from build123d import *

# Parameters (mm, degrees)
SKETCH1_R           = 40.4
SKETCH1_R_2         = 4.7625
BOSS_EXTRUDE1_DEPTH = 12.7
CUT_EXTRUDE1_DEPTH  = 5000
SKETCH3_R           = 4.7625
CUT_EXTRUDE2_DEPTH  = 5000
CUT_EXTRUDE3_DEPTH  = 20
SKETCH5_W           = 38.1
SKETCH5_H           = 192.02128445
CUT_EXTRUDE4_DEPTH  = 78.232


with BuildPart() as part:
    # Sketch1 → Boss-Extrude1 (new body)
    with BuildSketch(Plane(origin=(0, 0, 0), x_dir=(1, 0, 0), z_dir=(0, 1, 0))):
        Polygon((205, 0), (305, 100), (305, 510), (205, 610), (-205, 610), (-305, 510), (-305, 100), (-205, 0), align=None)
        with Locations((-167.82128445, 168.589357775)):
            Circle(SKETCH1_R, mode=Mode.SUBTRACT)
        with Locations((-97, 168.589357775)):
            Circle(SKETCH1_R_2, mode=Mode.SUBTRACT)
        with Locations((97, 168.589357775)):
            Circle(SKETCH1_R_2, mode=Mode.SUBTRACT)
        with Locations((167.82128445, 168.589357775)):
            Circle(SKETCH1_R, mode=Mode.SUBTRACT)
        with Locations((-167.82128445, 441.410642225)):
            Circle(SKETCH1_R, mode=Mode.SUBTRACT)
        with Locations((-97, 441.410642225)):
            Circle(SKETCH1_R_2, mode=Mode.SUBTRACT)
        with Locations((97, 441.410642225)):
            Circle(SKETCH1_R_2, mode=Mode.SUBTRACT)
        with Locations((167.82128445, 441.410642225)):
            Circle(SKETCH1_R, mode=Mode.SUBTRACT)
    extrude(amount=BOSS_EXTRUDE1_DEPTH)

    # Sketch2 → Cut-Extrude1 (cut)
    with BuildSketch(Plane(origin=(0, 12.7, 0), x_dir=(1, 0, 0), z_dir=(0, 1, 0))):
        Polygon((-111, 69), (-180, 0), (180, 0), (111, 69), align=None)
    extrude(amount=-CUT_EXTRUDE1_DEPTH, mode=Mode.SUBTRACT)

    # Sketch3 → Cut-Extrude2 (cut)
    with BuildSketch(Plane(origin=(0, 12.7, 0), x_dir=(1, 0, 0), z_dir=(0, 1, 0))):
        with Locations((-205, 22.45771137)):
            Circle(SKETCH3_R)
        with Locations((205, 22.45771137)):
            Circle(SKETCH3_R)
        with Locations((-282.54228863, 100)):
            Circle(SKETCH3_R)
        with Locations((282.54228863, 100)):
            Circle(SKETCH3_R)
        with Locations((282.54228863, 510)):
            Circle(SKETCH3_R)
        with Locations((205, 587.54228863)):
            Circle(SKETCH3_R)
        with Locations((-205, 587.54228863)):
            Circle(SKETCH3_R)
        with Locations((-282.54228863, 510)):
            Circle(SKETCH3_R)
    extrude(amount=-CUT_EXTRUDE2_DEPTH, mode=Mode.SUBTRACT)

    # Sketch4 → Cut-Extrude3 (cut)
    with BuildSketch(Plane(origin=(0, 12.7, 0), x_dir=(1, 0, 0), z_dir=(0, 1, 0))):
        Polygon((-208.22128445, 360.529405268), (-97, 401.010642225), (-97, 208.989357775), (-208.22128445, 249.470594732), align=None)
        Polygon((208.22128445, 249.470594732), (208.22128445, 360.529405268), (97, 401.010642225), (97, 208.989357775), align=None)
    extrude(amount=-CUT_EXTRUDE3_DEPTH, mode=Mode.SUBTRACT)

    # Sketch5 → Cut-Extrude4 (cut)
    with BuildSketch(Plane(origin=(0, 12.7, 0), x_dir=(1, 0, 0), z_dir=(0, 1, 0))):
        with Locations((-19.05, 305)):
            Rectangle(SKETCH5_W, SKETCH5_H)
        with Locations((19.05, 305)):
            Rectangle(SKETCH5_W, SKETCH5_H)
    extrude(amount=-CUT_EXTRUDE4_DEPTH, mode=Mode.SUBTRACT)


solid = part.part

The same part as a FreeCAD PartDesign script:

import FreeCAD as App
import Part
import Sketcher
Q = App.Units.Quantity

doc = App.newDocument("Part")
body = doc.addObject("PartDesign::Body", "Body")

# Sketch on XZ plane
sketch1 = body.newObject("Sketcher::SketchObject", "Sketch")
sketch1.AttachmentSupport = (doc.getObject("XZ_Plane"), [""])
sketch1.MapMode = "FlatFace"
sketch1.addGeometry([
    Part.LineSegment(App.Vector(205, 0, 0), App.Vector(305, -100, 0)),  # 0
    Part.LineSegment(App.Vector(305, -100, 0), App.Vector(305, -510, 0)),  # 1
    Part.LineSegment(App.Vector(305, -510, 0), App.Vector(205, -610, 0)),  # 2
    Part.LineSegment(App.Vector(205, -610, 0), App.Vector(-205, -610, 0)),  # 3
    Part.LineSegment(App.Vector(-205, -610, 0), App.Vector(-305, -510, 0)),  # 4
    Part.LineSegment(App.Vector(-305, -510, 0), App.Vector(-305, -100, 0)),  # 5
    Part.LineSegment(App.Vector(-305, -100, 0), App.Vector(-205, 0, 0)),  # 6
    Part.LineSegment(App.Vector(-205, 0, 0), App.Vector(205, 0, 0)),  # 7
    Part.Circle(App.Vector(-167.8, -168.6, 0), App.Vector(0, 0, 1), 40.4),  # 8
    Part.Circle(App.Vector(-97, -168.6, 0), App.Vector(0, 0, 1), 4.8),  # 9
    Part.Circle(App.Vector(97, -168.6, 0), App.Vector(0, 0, 1), 4.8),  # 10
    Part.Circle(App.Vector(167.8, -168.6, 0), App.Vector(0, 0, 1), 40.4),  # 11
    Part.Circle(App.Vector(-167.8, -441.4, 0), App.Vector(0, 0, 1), 40.4),  # 12
    Part.Circle(App.Vector(-97, -441.4, 0), App.Vector(0, 0, 1), 4.8),  # 13
    Part.Circle(App.Vector(97, -441.4, 0), App.Vector(0, 0, 1), 4.8),  # 14
    Part.Circle(App.Vector(167.8, -441.4, 0), App.Vector(0, 0, 1), 40.4),  # 15
], False)
sketch1.addConstraint([
    Sketcher.Constraint("Coincident", 0, 2, 1, 1),
    Sketcher.Constraint("Coincident", 1, 2, 2, 1),
    Sketcher.Constraint("Coincident", 2, 2, 3, 1),
    Sketcher.Constraint("Coincident", 3, 2, 4, 1),
    Sketcher.Constraint("Coincident", 4, 2, 5, 1),
    Sketcher.Constraint("Coincident", 5, 2, 6, 1),
    Sketcher.Constraint("Coincident", 6, 2, 7, 1),
    Sketcher.Constraint("Coincident", 7, 2, 0, 1),
    Sketcher.Constraint("Vertical", 1),
    Sketcher.Constraint("Horizontal", 3),
    Sketcher.Constraint("Vertical", 5),
    Sketcher.Constraint("Horizontal", 7),
    Sketcher.Constraint("Equal", 9, 10),
    Sketcher.Constraint("Equal", 8, 11),
    Sketcher.Constraint("Equal", 11, 12),
    Sketcher.Constraint("Equal", 10, 13),
    Sketcher.Constraint("Equal", 13, 14),
    Sketcher.Constraint("Equal", 12, 15),
    Sketcher.Constraint("Symmetric", 6, 2, 7, 2, -1, 1),
    Sketcher.Constraint("Symmetric", 9, 3, 10, 3, -2),
    Sketcher.Constraint("Symmetric", 8, 3, 11, 3, -2),
    Sketcher.Constraint("Symmetric", 13, 3, 14, 3, -2),
    Sketcher.Constraint("Symmetric", 12, 3, 15, 3, -2),
    Sketcher.Constraint("Symmetric", 1, 2, 4, 2, -2),
    Sketcher.Constraint("Perpendicular", 0, 2),
    Sketcher.Constraint("Perpendicular", 2, 4),
    Sketcher.Constraint("Perpendicular", 4, 6),
    Sketcher.Constraint("Horizontal", 8, 3, 9, 3),
    Sketcher.Constraint("Horizontal", 12, 3, 13, 3),
    Sketcher.Constraint("Horizontal", 0, 2, 5, 2),
    Sketcher.Constraint("Vertical", 8, 3, 12, 3),
    Sketcher.Constraint("Vertical", 9, 3, 13, 3),
    Sketcher.Constraint("Vertical", 3, 2, 6, 2),
    Sketcher.Constraint("Equal", 7, 1),
    Sketcher.Constraint("Diameter", 8, 80.8),
    Sketcher.Constraint("DistanceX", 3, 2, 3, 1, 410.0),
    Sketcher.Constraint("Diameter", 9, 9.525),
    Sketcher.Constraint("DistanceX", 9, 3, -1, 1, 97.0),
    Sketcher.Constraint("DistanceX", -1, 1, 0, 2, 305.0),
    Sketcher.Constraint("DistanceX", 8, 3, 11, 3, 335.642569),
    Sketcher.Constraint("DistanceY", 8, 3, -1, 1, 168.589358),
    Sketcher.Constraint("DistanceY", 12, 3, -1, 1, 441.410642),
])
pad1 = body.newObject("PartDesign::Pad", "Pad")
pad1.Profile = sketch1
pad1.Length = 12.7
pad1.Reversed = True

# Sketch on XZ plane
sketch2 = body.newObject("Sketcher::SketchObject", "Sketch001")
sketch2.AttachmentSupport = (doc.getObject("XZ_Plane"), [""])
sketch2.MapMode = "FlatFace"
sketch2.AttachmentOffset = App.Placement(App.Vector(0, 0, -12.7), App.Rotation())
sketch2.addGeometry([
    Part.LineSegment(App.Vector(-111, -69, 0), App.Vector(-180, 0, 0)),
    Part.LineSegment(App.Vector(-180, 0, 0), App.Vector(180, 0, 0)),
    Part.LineSegment(App.Vector(180, 0, 0), App.Vector(111, -69, 0)),
    Part.LineSegment(App.Vector(111, -69, 0), App.Vector(-111, -69, 0)),
], False)
sketch2.addConstraint([
    Sketcher.Constraint("Coincident", 0, 2, 1, 1),
    Sketcher.Constraint("Coincident", 1, 2, 2, 1),
    Sketcher.Constraint("Coincident", 2, 2, 3, 1),
    Sketcher.Constraint("Coincident", 3, 2, 0, 1),
    Sketcher.Constraint("Horizontal", 1),
    Sketcher.Constraint("Horizontal", 3),
    Sketcher.Constraint("Symmetric", 0, 2, 1, 2, -1, 1),
    Sketcher.Constraint("Perpendicular", 0, 2),
    Sketcher.Constraint("Equal", 0, 2),
    Sketcher.Constraint("DistanceX", 1, 1, 1, 2, 360.0),
    Sketcher.Constraint("DistanceX", 3, 2, 3, 1, 222.0),
])
pocket1 = body.newObject("PartDesign::Pocket", "Pocket")
pocket1.Profile = sketch2
pocket1.Length = 5000
pocket1.Reversed = True

# Sketch on XZ plane
sketch3 = body.newObject("Sketcher::SketchObject", "Sketch002")
sketch3.AttachmentSupport = (doc.getObject("XZ_Plane"), [""])
sketch3.MapMode = "FlatFace"
sketch3.AttachmentOffset = App.Placement(App.Vector(0, 0, -12.7), App.Rotation())
sketch3.addGeometry([
    Part.Circle(App.Vector(-205, -22.5, 0), App.Vector(0, 0, 1), 4.8),  # 0
    Part.Circle(App.Vector(205, -22.5, 0), App.Vector(0, 0, 1), 4.8),  # 1
    Part.Circle(App.Vector(-282.5, -100, 0), App.Vector(0, 0, 1), 4.8),  # 2
    Part.Circle(App.Vector(282.5, -100, 0), App.Vector(0, 0, 1), 4.8),  # 3
    Part.Circle(App.Vector(282.5, -510, 0), App.Vector(0, 0, 1), 4.8),  # 4
    Part.Circle(App.Vector(205, -587.5, 0), App.Vector(0, 0, 1), 4.8),  # 5
    Part.Circle(App.Vector(-205, -587.5, 0), App.Vector(0, 0, 1), 4.8),  # 6
    Part.Circle(App.Vector(-282.5, -510, 0), App.Vector(0, 0, 1), 4.8),  # 7
], False)
sketch3.addConstraint([
    Sketcher.Constraint("Equal", 0, 1),
    Sketcher.Constraint("Equal", 1, 2),
    Sketcher.Constraint("Equal", 2, 3),
    Sketcher.Constraint("Equal", 3, 4),
    Sketcher.Constraint("Equal", 4, 5),
    Sketcher.Constraint("Equal", 5, 6),
    Sketcher.Constraint("Equal", 6, 7),
    Sketcher.Constraint("Symmetric", 0, 3, 1, 3, -2),
    Sketcher.Constraint("Symmetric", 2, 3, 3, 3, -2),
    Sketcher.Constraint("Symmetric", 5, 3, 6, 3, -2),
    Sketcher.Constraint("Symmetric", 4, 3, 7, 3, -2),
    Sketcher.Constraint("Vertical", 3, 3, 4, 3),
    Sketcher.Constraint("Vertical", 1, 3, 5, 3),
    Sketcher.Constraint("Diameter", 0, 9.525),
    Sketcher.Constraint("DistanceX", 0, 3, -1, 1, 205.0),
    Sketcher.Constraint("DistanceY", 2, 3, -1, 1, 100.0),
    Sketcher.Constraint("DistanceY", 4, 3, -1, 1, 510.0),
    Sketcher.Constraint("DistanceY", 0, 3, -1, 1, 22.457711),
    Sketcher.Constraint("DistanceX", 2, 3, -1, 1, 282.542289),
    Sketcher.Constraint("DistanceY", 5, 3, -1, 1, 587.542289),
])
pocket2 = body.newObject("PartDesign::Pocket", "Pocket001")
pocket2.Profile = sketch3
pocket2.Length = 5000
pocket2.Reversed = True

# Sketch on XZ plane
sketch4 = body.newObject("Sketcher::SketchObject", "Sketch003")
sketch4.AttachmentSupport = (doc.getObject("XZ_Plane"), [""])
sketch4.MapMode = "FlatFace"
sketch4.AttachmentOffset = App.Placement(App.Vector(0, 0, -12.7), App.Rotation())
sketch4.addGeometry([
    Part.LineSegment(App.Vector(-97, -401, 0), App.Vector(-208, -361, 0)),  # 0
    Part.LineSegment(App.Vector(-208, -361, 0), App.Vector(-208, -249, 0)),  # 1
    Part.LineSegment(App.Vector(-208, -249, 0), App.Vector(-97, -209, 0)),  # 2
    Part.LineSegment(App.Vector(-97, -209, 0), App.Vector(-97, -401, 0)),  # 3
    Part.LineSegment(App.Vector(208, -249, 0), App.Vector(208, -361, 0)),  # 4
    Part.LineSegment(App.Vector(208, -361, 0), App.Vector(97, -401, 0)),  # 5
    Part.LineSegment(App.Vector(97, -401, 0), App.Vector(97, -209, 0)),  # 6
    Part.LineSegment(App.Vector(97, -209, 0), App.Vector(208, -249, 0)),  # 7
], False)
sketch4.addConstraint([
    Sketcher.Constraint("Coincident", 0, 2, 1, 1),
    Sketcher.Constraint("Coincident", 1, 2, 2, 1),
    Sketcher.Constraint("Coincident", 2, 2, 3, 1),
    Sketcher.Constraint("Coincident", 3, 2, 0, 1),
    Sketcher.Constraint("Coincident", 4, 2, 5, 1),
    Sketcher.Constraint("Coincident", 5, 2, 6, 1),
    Sketcher.Constraint("Coincident", 6, 2, 7, 1),
    Sketcher.Constraint("Coincident", 7, 2, 4, 1),
    Sketcher.Constraint("Vertical", 1),
    Sketcher.Constraint("Vertical", 3),
    Sketcher.Constraint("Vertical", 4),
    Sketcher.Constraint("Vertical", 6),
    Sketcher.Constraint("Symmetric", 0, 2, 4, 2, -2),
    Sketcher.Constraint("Symmetric", 3, 2, 5, 2, -2),
    Sketcher.Constraint("Parallel", 2, 5),
    Sketcher.Constraint("Parallel", 0, 7),
    Sketcher.Constraint("Horizontal", 2, 2, 6, 2),
    Sketcher.Constraint("Angle", 0, Q("160 deg")),
    Sketcher.Constraint("DistanceX", 2, 2, -1, 1, 97.0),
    Sketcher.Constraint("DistanceY", 1, 1, 1, 2, 111.058811),
    Sketcher.Constraint("Distance", 0, 118.359219),
    Sketcher.Constraint("DistanceY", 0, 2, -1, 1, 360.529405),
])
pocket3 = body.newObject("PartDesign::Pocket", "Pocket002")
pocket3.Profile = sketch4
pocket3.Length = 20
pocket3.Reversed = True

# Sketch on XZ plane
sketch5 = body.newObject("Sketcher::SketchObject", "Sketch004")
sketch5.AttachmentSupport = (doc.getObject("XZ_Plane"), [""])
sketch5.MapMode = "FlatFace"
sketch5.AttachmentOffset = App.Placement(App.Vector(0, 0, -12.7), App.Rotation())
sketch5.addGeometry([
    Part.LineSegment(App.Vector(-38, -401, 0), App.Vector(-38, -209, 0)),
    Part.LineSegment(App.Vector(-38, -209, 0), App.Vector(38, -209, 0)),
    Part.LineSegment(App.Vector(38, -209, 0), App.Vector(38, -401, 0)),
    Part.LineSegment(App.Vector(38, -401, 0), App.Vector(-38, -401, 0)),
], False)
sketch5.addConstraint([
    Sketcher.Constraint("Coincident", 0, 2, 1, 1),
    Sketcher.Constraint("Coincident", 1, 2, 2, 1),
    Sketcher.Constraint("Coincident", 2, 2, 3, 1),
    Sketcher.Constraint("Coincident", 3, 2, 0, 1),
    Sketcher.Constraint("Vertical", 0),
    Sketcher.Constraint("Horizontal", 1),
    Sketcher.Constraint("Vertical", 2),
    Sketcher.Constraint("Horizontal", 3),
    Sketcher.Constraint("DistanceX", 1, 1, 1, 2, 76.2),
    Sketcher.Constraint("DistanceX", 0, 2, -1, 1, 38.1),
    Sketcher.Constraint("DistanceY", 0, 1, 0, 2, 192.021284),
    Sketcher.Constraint("DistanceY", 0, 2, -1, 1, 208.989358),
])
pocket4 = body.newObject("PartDesign::Pocket", "Pocket003")
pocket4.Profile = sketch5
pocket4.Length = 78.232
pocket4.Reversed = True

doc.recompute()
